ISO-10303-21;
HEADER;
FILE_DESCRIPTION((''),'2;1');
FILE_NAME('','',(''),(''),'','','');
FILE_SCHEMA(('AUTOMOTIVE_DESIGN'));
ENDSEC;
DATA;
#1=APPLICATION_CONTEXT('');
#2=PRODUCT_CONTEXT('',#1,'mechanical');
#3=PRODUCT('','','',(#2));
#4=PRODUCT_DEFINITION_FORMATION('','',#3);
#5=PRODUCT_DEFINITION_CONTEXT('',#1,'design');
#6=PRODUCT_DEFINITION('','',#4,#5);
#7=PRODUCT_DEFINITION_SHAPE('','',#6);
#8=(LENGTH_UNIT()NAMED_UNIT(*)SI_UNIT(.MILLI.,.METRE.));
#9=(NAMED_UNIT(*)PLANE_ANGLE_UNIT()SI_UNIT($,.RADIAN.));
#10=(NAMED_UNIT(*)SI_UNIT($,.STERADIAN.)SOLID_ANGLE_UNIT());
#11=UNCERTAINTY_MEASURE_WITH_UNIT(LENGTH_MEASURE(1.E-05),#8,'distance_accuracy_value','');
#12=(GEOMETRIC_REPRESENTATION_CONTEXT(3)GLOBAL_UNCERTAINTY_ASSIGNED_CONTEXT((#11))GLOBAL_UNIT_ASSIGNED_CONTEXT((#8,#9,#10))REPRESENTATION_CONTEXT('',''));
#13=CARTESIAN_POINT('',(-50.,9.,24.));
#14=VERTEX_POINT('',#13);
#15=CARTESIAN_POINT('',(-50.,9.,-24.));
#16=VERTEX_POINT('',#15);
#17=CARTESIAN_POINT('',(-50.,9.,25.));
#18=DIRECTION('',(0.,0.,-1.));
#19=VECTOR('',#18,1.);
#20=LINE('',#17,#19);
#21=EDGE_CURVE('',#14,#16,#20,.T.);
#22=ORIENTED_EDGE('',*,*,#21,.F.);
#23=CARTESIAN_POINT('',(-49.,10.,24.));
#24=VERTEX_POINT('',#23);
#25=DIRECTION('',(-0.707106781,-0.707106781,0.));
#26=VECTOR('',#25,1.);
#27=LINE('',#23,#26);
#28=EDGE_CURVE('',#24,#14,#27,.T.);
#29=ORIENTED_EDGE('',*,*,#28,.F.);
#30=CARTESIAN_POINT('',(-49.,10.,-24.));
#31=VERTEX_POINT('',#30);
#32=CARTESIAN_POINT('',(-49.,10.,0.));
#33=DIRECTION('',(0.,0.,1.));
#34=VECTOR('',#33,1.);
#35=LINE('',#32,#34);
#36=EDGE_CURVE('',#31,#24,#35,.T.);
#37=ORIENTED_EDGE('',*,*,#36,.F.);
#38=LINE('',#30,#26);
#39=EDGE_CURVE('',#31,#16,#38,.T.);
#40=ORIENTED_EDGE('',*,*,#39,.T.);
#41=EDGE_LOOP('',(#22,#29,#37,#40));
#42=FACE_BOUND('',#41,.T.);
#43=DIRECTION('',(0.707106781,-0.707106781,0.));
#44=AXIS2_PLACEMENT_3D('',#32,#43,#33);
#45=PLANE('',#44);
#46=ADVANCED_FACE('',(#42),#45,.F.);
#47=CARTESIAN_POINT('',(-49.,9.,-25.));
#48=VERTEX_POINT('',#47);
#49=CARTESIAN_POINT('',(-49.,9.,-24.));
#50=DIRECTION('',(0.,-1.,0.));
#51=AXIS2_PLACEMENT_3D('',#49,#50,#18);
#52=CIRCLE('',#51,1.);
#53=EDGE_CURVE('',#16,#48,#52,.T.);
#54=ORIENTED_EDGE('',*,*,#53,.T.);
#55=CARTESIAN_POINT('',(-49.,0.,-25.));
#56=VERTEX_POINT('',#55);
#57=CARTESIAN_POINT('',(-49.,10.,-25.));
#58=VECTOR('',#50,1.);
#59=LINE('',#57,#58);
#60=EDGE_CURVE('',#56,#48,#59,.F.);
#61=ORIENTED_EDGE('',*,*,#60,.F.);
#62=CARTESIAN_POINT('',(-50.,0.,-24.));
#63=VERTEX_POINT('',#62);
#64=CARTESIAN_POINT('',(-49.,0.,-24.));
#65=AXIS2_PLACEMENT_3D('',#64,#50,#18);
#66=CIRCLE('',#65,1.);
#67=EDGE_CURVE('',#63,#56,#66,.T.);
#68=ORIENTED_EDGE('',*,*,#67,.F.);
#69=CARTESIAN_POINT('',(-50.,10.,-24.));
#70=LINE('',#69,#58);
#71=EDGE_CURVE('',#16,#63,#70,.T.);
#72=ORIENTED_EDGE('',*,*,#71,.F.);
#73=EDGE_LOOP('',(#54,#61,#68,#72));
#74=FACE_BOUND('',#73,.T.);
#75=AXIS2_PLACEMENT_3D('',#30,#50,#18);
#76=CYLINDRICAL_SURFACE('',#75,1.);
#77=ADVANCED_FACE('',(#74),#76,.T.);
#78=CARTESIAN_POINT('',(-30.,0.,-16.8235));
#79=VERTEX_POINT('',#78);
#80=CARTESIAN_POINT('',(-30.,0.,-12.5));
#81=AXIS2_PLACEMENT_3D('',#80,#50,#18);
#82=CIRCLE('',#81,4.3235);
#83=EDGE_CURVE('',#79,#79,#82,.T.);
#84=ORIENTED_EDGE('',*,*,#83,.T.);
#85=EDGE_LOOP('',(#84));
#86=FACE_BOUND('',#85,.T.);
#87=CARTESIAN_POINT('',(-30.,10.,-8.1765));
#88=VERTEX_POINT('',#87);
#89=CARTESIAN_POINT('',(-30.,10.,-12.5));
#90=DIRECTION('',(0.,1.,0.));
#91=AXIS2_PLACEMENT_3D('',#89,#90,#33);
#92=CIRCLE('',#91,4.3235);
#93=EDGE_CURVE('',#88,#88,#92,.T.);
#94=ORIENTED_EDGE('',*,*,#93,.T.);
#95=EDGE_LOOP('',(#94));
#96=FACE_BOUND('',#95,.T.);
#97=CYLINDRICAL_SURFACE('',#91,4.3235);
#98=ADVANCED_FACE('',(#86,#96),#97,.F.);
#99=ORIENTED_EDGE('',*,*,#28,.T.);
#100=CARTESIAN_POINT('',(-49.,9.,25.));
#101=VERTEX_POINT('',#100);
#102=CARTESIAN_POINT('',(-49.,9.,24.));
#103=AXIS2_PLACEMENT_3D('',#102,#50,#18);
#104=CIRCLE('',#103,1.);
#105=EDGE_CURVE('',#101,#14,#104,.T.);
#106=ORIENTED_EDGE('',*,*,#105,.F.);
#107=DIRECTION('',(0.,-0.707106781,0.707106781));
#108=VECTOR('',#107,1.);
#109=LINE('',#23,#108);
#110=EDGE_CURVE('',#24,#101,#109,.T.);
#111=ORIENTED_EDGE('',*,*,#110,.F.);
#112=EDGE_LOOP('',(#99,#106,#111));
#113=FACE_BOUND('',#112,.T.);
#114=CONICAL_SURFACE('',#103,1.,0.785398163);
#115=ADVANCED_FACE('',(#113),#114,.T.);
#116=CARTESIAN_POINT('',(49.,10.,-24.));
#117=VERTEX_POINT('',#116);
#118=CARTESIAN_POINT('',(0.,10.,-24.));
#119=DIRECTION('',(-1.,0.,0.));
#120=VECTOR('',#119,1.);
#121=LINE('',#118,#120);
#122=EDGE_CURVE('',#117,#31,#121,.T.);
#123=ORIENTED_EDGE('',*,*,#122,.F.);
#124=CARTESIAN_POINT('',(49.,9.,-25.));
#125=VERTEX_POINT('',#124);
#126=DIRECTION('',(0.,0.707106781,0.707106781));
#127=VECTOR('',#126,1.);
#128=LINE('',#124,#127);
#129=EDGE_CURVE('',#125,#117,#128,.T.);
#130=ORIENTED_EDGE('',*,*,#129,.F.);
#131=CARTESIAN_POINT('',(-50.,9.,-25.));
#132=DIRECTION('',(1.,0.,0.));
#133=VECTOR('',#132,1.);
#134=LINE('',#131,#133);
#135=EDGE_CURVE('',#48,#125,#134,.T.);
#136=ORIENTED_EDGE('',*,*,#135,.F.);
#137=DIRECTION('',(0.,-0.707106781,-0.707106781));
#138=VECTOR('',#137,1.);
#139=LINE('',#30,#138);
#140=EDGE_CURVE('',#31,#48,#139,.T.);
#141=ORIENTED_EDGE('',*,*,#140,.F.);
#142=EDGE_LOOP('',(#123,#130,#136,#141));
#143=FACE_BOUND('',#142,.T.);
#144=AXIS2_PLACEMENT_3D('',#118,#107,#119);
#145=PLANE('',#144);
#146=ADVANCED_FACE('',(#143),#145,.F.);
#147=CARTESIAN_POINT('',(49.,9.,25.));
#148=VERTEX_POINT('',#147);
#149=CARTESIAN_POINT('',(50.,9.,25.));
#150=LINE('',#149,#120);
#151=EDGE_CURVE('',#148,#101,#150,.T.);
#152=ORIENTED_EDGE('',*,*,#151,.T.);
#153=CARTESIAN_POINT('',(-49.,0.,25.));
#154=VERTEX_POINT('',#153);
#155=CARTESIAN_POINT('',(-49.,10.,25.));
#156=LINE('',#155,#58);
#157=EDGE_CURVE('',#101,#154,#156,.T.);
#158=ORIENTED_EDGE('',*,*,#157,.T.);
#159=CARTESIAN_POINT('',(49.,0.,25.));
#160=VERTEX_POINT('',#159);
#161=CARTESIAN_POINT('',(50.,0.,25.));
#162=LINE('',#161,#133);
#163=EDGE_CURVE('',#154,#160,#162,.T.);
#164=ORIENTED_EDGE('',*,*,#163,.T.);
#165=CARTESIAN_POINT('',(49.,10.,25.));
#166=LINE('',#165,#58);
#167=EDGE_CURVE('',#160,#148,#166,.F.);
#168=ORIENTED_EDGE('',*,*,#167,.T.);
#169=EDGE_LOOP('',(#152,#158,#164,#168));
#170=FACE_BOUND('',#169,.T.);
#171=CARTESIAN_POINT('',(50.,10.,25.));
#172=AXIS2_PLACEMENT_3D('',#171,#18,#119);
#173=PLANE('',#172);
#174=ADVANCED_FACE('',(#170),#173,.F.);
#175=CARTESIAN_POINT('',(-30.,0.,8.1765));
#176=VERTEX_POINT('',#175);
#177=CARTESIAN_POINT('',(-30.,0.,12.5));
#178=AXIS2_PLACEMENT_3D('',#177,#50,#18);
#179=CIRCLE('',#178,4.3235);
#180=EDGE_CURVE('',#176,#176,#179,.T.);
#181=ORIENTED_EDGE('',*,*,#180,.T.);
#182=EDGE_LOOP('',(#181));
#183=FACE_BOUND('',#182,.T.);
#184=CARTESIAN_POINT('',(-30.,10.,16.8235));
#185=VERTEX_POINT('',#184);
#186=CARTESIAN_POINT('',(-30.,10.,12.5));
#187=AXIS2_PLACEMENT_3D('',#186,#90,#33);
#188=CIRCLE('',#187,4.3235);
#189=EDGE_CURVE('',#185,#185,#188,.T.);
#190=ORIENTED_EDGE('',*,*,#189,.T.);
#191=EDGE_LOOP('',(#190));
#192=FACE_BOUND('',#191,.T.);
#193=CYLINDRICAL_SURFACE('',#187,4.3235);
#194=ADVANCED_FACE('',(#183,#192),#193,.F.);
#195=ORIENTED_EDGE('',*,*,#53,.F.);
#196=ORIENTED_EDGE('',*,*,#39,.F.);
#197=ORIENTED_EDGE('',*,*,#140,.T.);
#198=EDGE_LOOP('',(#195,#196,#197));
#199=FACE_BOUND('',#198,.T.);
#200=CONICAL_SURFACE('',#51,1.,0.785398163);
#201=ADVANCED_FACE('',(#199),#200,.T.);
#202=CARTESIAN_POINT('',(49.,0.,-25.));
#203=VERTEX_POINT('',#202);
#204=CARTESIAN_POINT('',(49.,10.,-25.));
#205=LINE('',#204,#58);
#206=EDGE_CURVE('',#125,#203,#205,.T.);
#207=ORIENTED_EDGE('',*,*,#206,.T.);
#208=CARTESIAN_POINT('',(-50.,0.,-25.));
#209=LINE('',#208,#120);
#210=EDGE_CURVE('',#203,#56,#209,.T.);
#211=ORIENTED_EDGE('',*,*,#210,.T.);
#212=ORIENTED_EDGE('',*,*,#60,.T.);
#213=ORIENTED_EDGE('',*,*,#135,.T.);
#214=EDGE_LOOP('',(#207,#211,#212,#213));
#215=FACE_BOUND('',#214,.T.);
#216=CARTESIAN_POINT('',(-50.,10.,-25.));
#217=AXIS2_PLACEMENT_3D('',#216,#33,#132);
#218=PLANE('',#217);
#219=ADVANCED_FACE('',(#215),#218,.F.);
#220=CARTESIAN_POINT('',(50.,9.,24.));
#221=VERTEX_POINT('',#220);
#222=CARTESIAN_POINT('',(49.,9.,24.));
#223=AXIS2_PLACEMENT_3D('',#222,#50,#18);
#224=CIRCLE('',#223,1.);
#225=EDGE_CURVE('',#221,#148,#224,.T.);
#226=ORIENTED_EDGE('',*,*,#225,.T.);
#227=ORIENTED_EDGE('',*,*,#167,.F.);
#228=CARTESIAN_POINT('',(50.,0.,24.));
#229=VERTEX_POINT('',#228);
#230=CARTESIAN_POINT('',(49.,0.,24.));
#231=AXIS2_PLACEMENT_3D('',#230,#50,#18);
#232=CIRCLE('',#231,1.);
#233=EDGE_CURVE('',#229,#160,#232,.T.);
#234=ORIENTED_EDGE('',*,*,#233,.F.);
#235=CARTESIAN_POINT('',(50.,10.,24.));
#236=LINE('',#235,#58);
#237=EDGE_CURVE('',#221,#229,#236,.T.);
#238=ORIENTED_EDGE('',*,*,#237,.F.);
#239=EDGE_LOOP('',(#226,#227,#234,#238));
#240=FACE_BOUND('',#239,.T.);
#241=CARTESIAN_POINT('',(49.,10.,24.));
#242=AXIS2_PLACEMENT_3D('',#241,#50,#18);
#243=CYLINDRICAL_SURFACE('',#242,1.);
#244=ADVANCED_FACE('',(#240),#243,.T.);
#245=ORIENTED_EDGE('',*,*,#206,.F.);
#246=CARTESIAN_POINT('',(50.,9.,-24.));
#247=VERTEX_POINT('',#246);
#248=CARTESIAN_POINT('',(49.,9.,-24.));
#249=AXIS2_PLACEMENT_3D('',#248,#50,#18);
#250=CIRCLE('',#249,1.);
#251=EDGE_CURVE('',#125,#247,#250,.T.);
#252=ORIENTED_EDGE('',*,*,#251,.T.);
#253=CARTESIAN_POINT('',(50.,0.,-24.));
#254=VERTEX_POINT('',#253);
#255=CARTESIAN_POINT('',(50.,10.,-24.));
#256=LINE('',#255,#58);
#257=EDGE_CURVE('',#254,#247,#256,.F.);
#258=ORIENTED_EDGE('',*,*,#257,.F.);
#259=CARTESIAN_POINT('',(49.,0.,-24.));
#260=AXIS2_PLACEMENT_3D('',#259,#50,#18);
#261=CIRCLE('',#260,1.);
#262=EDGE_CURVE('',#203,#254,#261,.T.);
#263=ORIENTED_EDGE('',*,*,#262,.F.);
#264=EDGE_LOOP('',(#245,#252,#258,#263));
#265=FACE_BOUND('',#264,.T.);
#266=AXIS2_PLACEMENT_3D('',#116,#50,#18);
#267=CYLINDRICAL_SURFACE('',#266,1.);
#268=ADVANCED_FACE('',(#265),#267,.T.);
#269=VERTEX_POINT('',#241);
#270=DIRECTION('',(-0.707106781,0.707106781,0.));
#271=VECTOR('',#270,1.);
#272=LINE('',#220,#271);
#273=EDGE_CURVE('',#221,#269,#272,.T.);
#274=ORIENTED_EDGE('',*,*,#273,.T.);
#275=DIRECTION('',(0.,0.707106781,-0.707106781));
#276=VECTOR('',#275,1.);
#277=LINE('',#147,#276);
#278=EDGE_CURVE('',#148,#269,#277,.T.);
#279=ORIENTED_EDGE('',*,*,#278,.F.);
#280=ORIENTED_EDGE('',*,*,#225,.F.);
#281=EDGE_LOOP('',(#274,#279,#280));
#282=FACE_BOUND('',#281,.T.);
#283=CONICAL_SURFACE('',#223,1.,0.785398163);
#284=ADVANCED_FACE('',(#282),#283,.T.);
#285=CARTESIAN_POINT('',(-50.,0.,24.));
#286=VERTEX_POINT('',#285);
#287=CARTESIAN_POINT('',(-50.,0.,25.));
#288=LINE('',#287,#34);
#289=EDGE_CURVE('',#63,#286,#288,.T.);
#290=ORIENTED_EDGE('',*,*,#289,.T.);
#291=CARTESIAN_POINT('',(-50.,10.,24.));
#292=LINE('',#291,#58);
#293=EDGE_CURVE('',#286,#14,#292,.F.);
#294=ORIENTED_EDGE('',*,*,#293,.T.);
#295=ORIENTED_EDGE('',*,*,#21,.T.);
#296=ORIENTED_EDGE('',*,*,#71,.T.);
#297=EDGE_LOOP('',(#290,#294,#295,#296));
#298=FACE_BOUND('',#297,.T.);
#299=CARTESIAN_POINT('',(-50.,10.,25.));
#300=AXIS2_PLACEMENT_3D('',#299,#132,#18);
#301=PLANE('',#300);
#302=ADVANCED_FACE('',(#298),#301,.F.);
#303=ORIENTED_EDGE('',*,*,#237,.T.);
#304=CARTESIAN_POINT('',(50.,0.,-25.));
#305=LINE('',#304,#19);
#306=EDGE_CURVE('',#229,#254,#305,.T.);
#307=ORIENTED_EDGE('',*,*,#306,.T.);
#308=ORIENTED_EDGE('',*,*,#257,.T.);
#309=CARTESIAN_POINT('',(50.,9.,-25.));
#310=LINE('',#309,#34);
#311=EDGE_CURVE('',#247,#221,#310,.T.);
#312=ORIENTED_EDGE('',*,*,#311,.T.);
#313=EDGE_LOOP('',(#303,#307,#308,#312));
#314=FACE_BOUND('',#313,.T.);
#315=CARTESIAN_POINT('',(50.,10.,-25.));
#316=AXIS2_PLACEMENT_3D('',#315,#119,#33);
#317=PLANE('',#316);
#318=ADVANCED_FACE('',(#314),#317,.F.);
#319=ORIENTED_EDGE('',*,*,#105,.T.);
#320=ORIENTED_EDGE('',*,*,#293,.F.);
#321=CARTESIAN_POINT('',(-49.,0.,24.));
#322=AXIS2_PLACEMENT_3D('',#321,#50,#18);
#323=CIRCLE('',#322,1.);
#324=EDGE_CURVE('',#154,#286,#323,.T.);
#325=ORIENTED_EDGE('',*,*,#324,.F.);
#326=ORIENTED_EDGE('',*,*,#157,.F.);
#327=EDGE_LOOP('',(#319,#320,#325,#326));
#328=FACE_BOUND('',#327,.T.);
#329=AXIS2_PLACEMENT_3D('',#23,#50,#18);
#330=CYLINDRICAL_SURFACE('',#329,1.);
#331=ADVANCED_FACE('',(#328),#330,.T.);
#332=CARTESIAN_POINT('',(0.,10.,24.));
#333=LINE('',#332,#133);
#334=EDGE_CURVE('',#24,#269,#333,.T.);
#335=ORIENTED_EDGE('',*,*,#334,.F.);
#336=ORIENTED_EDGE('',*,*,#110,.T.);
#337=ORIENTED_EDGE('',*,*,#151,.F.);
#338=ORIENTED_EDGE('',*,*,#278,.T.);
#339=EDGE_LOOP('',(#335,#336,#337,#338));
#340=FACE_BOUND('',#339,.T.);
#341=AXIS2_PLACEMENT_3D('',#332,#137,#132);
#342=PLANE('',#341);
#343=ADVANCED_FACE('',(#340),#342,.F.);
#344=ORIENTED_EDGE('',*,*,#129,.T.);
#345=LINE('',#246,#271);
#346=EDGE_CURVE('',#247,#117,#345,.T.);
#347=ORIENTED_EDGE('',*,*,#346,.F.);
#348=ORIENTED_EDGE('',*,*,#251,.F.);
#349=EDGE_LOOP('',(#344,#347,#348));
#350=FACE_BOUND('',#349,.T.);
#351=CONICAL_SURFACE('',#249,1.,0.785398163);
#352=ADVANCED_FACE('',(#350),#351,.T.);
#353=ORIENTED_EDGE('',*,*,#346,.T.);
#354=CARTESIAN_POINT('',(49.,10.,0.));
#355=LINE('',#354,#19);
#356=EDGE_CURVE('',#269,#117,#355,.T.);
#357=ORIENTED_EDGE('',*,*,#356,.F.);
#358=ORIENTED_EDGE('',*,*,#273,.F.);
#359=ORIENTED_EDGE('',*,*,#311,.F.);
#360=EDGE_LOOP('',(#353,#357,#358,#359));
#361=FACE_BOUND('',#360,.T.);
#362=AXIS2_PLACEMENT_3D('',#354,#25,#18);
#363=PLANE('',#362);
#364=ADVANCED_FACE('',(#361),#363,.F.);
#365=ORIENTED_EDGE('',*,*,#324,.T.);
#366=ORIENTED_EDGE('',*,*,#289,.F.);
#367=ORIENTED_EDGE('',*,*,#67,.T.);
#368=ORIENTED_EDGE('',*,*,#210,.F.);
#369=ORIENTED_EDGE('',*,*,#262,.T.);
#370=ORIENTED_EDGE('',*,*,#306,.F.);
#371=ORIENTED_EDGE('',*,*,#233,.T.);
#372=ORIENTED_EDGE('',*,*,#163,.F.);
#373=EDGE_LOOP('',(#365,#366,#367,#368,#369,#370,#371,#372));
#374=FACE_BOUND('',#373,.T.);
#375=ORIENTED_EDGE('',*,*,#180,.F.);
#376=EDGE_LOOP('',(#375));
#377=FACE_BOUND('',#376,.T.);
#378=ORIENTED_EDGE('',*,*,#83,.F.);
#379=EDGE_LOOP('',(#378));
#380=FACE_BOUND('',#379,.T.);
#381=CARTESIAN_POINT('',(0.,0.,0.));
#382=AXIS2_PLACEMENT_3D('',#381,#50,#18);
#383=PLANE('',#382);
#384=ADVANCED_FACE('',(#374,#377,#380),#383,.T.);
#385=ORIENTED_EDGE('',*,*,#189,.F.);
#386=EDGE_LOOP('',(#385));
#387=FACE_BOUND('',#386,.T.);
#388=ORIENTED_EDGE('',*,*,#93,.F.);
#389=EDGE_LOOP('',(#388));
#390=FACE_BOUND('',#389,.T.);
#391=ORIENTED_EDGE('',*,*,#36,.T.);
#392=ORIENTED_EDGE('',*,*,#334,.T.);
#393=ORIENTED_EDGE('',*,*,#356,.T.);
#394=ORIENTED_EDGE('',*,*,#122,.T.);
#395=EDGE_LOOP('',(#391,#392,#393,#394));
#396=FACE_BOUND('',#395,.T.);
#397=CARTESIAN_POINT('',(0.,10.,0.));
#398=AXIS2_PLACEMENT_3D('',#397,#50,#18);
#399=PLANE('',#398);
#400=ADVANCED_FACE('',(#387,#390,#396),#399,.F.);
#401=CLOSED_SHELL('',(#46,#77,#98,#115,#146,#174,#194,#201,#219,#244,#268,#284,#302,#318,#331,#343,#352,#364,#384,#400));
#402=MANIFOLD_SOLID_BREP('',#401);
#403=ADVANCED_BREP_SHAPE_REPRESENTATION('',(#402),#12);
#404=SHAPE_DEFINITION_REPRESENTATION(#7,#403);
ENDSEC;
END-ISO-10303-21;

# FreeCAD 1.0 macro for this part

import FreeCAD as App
import Part
import Sketcher

V = App.Vector
Q = App.Units.Quantity


def edges_at(feature, points):
    """Names of the edges that pass closest to the given points."""
    edges = feature.Shape.Edges
    near = lambda p: min(range(len(edges)), key=lambda i: edges[i].distToShape(Part.Vertex(*p))[0])
    return sorted({f"Edge{near(p) + 1}" for p in points})

doc = App.newDocument("Part")
params = doc.addObject("Spreadsheet::Sheet", "Params")
for row, (alias, value) in enumerate([
    ("sketch1_width", "100 mm"),
    ("sketch1_height", "50 mm"),
    ("pad1_length", "10 mm"),
    ("fillet_radius", "1 mm"),
    ("chamfer_size", "1 mm"),
    ("hole_diameter", "8.647 mm"),
    ("hole_depth", "26.2 mm"),
], start=1):
    params.set(f"A{row}", alias)
    params.set(f"B{row}", "=" + value)
    params.setAlias(f"B{row}", alias)

body = doc.addObject("PartDesign::Body", "Body")

# Sketch on XZ plane
sketch1 = body.newObject("Sketcher::SketchObject", "Sketch")
sketch1.AttachmentSupport = (doc.getObject("XZ_Plane"), [""])
sketch1.MapMode = "FlatFace"
sketch1.addGeometry(Part.LineSegment(V(50, 25, 0), V(50, -25, 0)), False)
sketch1.addGeometry(Part.LineSegment(V(50, -25, 0), V(-50, -25, 0)), False)
sketch1.addGeometry(Part.LineSegment(V(-50, -25, 0), V(-50, 25, 0)), False)
sketch1.addGeometry(Part.LineSegment(V(-50, 25, 0), V(50, 25, 0)), False)
sketch1.addConstraint(Sketcher.Constraint("Coincident", 0, 2, 1, 1))
sketch1.addConstraint(Sketcher.Constraint("Coincident", 1, 2, 2, 1))
sketch1.addConstraint(Sketcher.Constraint("Coincident", 2, 2, 3, 1))
sketch1.addConstraint(Sketcher.Constraint("Coincident", 3, 2, 0, 1))
sketch1.addConstraint(Sketcher.Constraint("Vertical", 0))
sketch1.addConstraint(Sketcher.Constraint("Horizontal", 1))
sketch1.addConstraint(Sketcher.Constraint("Vertical", 2))
sketch1.addConstraint(Sketcher.Constraint("Horizontal", 3))
sketch1.addConstraint(Sketcher.Constraint("Symmetric", 0, 2, 2, 2, -1, 1))
sketch1.addConstraint(Sketcher.Constraint("DistanceX", 1, 2, 1, 1, Q("100 mm")))
sketch1.addConstraint(Sketcher.Constraint("DistanceY", 0, 2, 0, 1, Q("50 mm")))
sketch1.setExpression("Constraints[9]", "Params.sketch1_width")
sketch1.setExpression("Constraints[10]", "Params.sketch1_height")
pad1 = body.newObject("PartDesign::Pad", "Pad")
pad1.Profile = sketch1
pad1.setExpression("Length", "Params.pad1_length")
pad1.Reversed = True
doc.recompute()

fillet = body.newObject("PartDesign::Fillet", "Fillet")
fillet.Base = (pad1, edges_at(pad1, [
    (-50, 5, -25),
    (50, 5, -25),
    (50, 5, 25),
    (-50, 5, 25),
]))
fillet.setExpression("Radius", "Params.fillet_radius")
doc.recompute()

chamfer = body.newObject("PartDesign::Chamfer", "Chamfer")
chamfer.Base = (fillet, edges_at(fillet, [
    (0, 10, 25),
    (-50, 10, 0),
    (50, 10, 0),
    (0, 10, -25),
    (49.707, 10, 24.707),
    (49.707, 10, -24.707),
    (-49.707, 10, -24.707),
    (-49.707, 10, 24.707),
]))
chamfer.setExpression("Size", "Params.chamfer_size")

# Sketch on XZ plane
sketch2 = body.newObject("Sketcher::SketchObject", "Sketch001")
sketch2.AttachmentSupport = (doc.getObject("XZ_Plane"), [""])
sketch2.MapMode = "FlatFace"
sketch2.AttachmentOffset = App.Placement(V(0, 0, -10), App.Rotation())
sketch2.addGeometry(Part.Circle(V(-30, -12.5, 0), V(0, 0, 1), 4.3), False)
sketch2.addGeometry(Part.Circle(V(-30, 12.5, 0), V(0, 0, 1), 4.3), False)
sketch2.addConstraint(Sketcher.Constraint("Equal", 0, 1))
sketch2.addConstraint(Sketcher.Constraint("Symmetric", 0, 3, 1, 3, -1))
sketch2.addConstraint(Sketcher.Constraint("Diameter", 0, Q("8.647 mm")))
sketch2.addConstraint(Sketcher.Constraint("DistanceX", 0, 3, -1, 1, Q("30 mm")))
sketch2.addConstraint(Sketcher.Constraint("DistanceY", 0, 3, 1, 3, Q("25 mm")))
doc.recompute()
hole = body.newObject("PartDesign::Hole", "Hole")
hole.Profile = sketch2
hole.ThreadType = "None"
hole.setExpression("Diameter", "Params.hole_diameter")
hole.DepthType = "Dimension"
hole.setExpression("Depth", "Params.hole_depth")
hole.DrillPoint = "Angled"
hole.DrillPointAngle = 118
hole.Reversed = True

doc.recompute()
